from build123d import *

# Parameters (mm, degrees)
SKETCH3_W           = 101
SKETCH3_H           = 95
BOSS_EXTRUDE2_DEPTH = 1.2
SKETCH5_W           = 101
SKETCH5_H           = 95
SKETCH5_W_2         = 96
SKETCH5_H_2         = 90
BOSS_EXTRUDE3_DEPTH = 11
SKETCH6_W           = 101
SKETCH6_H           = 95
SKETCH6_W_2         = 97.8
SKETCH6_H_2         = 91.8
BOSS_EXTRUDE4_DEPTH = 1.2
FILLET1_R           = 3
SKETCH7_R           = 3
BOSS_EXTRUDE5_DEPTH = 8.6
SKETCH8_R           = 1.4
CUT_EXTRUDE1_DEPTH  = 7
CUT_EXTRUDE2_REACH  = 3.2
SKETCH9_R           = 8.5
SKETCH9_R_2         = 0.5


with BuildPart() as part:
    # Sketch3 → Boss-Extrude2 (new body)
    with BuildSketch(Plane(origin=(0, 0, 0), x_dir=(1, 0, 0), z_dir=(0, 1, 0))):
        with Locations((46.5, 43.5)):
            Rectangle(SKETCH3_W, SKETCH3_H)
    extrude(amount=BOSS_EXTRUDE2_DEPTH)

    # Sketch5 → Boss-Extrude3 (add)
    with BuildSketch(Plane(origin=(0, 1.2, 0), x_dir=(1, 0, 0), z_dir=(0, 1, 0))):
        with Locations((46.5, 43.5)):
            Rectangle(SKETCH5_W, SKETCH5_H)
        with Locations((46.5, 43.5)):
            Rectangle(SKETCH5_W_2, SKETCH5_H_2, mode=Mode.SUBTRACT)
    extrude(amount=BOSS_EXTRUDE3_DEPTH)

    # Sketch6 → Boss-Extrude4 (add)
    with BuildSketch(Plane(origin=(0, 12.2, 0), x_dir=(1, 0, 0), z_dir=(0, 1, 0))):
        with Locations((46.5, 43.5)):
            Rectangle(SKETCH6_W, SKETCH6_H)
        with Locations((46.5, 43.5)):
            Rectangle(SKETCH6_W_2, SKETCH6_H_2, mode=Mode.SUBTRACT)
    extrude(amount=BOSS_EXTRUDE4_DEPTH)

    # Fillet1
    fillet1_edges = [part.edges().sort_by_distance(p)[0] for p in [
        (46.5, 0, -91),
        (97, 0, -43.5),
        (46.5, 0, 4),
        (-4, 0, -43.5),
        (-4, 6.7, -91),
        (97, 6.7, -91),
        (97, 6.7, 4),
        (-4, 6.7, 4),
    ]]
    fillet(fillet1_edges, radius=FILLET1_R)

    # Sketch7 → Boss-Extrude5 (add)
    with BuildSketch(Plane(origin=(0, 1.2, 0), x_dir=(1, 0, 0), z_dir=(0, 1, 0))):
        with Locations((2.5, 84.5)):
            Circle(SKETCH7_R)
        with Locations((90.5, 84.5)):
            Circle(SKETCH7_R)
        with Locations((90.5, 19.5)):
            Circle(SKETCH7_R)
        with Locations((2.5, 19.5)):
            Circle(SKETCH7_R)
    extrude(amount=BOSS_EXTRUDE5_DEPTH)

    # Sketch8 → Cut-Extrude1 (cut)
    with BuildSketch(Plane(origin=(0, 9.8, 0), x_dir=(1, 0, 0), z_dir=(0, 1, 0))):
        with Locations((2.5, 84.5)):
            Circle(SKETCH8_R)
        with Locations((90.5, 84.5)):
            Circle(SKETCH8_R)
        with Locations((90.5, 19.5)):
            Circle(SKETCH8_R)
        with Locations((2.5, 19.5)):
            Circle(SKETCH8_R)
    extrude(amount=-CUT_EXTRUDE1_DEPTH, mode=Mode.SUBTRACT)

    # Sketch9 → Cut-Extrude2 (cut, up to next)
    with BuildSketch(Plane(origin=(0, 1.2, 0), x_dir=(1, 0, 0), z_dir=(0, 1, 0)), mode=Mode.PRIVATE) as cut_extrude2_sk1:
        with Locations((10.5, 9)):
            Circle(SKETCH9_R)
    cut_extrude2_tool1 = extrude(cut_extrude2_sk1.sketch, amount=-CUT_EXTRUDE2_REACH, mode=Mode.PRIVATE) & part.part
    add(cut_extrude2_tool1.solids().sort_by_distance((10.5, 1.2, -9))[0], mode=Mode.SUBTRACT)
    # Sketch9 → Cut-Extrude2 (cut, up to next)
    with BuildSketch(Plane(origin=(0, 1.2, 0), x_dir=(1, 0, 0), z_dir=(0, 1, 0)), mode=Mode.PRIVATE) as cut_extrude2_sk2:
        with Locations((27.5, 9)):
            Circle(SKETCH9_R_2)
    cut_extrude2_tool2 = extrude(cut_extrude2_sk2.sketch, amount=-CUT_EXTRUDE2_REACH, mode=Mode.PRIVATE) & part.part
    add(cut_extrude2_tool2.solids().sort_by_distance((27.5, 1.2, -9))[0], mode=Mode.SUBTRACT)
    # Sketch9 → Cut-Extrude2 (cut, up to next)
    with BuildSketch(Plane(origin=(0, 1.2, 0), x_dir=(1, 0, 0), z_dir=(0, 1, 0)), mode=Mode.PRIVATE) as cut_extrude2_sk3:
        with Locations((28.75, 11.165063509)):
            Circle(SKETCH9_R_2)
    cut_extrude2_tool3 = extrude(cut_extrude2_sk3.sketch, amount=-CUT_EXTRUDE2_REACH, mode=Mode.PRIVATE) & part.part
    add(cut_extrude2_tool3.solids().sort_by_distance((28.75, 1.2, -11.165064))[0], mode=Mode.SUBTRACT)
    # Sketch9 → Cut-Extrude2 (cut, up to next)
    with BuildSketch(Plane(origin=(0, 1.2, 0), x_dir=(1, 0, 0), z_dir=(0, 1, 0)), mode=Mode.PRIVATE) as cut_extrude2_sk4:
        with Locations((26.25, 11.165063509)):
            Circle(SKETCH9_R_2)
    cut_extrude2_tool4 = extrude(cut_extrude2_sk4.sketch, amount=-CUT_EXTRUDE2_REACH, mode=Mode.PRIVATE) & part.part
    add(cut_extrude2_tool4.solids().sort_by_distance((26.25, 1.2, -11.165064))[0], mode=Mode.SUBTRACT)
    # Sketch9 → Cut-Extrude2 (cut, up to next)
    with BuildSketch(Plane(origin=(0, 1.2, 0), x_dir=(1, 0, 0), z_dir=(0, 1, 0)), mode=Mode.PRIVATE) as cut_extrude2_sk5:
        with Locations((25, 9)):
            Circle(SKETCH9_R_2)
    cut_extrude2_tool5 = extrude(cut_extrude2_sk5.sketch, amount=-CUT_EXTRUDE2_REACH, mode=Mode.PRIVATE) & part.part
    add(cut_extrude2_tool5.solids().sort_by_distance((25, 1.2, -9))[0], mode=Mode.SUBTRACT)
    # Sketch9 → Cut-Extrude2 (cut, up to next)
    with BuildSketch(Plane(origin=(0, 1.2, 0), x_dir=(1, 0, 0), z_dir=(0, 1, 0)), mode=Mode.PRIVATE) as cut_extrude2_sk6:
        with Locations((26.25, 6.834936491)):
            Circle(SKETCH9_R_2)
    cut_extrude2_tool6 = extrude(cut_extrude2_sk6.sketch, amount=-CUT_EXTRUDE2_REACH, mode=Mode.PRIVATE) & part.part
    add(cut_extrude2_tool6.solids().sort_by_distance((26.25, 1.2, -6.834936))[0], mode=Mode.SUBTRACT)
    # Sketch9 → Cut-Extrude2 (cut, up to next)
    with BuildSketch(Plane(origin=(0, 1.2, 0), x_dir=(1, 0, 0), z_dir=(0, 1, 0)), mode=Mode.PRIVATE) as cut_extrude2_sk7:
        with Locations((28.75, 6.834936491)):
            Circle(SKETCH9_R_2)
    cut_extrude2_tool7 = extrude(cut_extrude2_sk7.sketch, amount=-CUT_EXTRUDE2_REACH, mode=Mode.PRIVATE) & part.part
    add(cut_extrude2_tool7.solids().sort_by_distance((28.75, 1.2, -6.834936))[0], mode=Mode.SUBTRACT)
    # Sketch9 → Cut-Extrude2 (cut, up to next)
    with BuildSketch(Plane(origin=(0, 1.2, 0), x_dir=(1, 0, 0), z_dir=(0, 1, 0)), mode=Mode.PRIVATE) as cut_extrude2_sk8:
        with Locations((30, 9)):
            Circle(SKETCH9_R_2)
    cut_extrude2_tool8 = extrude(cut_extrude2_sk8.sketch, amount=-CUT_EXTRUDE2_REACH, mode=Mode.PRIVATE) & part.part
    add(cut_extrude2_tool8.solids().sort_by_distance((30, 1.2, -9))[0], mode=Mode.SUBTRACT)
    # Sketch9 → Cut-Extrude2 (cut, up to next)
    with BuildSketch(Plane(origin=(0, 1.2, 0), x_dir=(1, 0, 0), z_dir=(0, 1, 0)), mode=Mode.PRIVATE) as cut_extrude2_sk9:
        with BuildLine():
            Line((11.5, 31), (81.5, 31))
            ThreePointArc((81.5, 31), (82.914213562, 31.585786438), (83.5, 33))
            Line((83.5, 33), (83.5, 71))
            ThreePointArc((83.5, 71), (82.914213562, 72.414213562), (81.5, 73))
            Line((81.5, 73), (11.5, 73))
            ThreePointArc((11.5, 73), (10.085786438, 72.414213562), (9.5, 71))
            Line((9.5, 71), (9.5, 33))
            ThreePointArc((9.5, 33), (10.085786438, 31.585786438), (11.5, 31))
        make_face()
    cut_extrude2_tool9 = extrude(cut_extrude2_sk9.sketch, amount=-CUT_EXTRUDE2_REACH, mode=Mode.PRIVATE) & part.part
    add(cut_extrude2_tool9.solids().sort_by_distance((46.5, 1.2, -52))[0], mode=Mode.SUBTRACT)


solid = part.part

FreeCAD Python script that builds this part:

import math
import FreeCAD as App
import Part
import Sketcher

V = App.Vector
Q = App.Units.Quantity


def edges_at(feature, points):
    """Names of the edges that pass closest to the given points."""
    edges = feature.Shape.Edges
    near = lambda p: min(range(len(edges)), key=lambda i: edges[i].distToShape(Part.Vertex(*p))[0])
    return sorted({f"Edge{near(p) + 1}" for p in points})


def add_polygon(sketch, points):
    """Adds a closed chain of lines whose ends are joined by coincident constraints."""
    first, n = sketch.GeometryCount, len(points)
    for a, b in zip(points, points[1:] + points[:1]):
        sketch.addGeometry(Part.LineSegment(App.Vector(*a, 0), App.Vector(*b, 0)), False)
    for i in range(n):
        sketch.addConstraint(Sketcher.Constraint("Coincident", first + i, 2, first + (i + 1) % n, 1))

doc = App.newDocument("Part")
params = doc.addObject("Spreadsheet::Sheet", "Params")
for row, (alias, value) in enumerate([
    ("sketch1_width", "101 mm"),
    ("sketch1_height", "95 mm"),
    ("pad1_length", "1.2 mm"),
    ("sketch2_width", "101 mm"),
    ("sketch2_width2", "96 mm"),
    ("sketch2_height", "95 mm"),
    ("sketch2_height2", "90 mm"),
    ("pad2_length", "11 mm"),
    ("sketch3_width", "101 mm"),
    ("sketch3_height", "95 mm"),
    ("sketch3_width2", "97.8 mm"),
    ("sketch3_height2", "91.8 mm"),
    ("pad3_length", "1.2 mm"),
    ("fillet_radius", "3 mm"),
    ("sketch4_diameter", "6 mm"),
    ("pad4_length", "8.6 mm"),
    ("sketch5_diameter", "2.8 mm"),
    ("pocket1_length", "7 mm"),
    ("sketch6_diameter", "17 mm"),
    ("sketch7_diameter", "1 mm"),
    ("sketch8_diameter", "1 mm"),
    ("sketch9_diameter", "1 mm"),
    ("sketch10_diameter", "1 mm"),
    ("sketch11_diameter", "1 mm"),
    ("sketch12_diameter", "1 mm"),
    ("sketch13_diameter", "1 mm"),
    ("sketch14_radius", "2 mm"),
    ("sketch14_width", "70 mm"),
    ("sketch14_height", "38 mm"),
], start=1):
    params.set(f"A{row}", alias)
    params.set(f"B{row}", "=" + value)
    params.setAlias(f"B{row}", alias)

body = doc.addObject("PartDesign::Body", "Body")

sketch1 = body.newObject("Sketcher::SketchObject", "Sketch")
sketch1.AttachmentSupport = (doc.getObject("XZ_Plane"), [""])
sketch1.MapMode = "FlatFace"
add_polygon(sketch1, [(-4, -91), (-4, 4), (97, 4), (97, -91)])
sketch1.addConstraint([
    Sketcher.Constraint("Vertical", 0),
    Sketcher.Constraint("Horizontal", 1),
    Sketcher.Constraint("Vertical", 2),
    Sketcher.Constraint("Horizontal", 3),
    Sketcher.Constraint("DistanceX", 1, 1, 1, 2, Q("101 mm")),
    Sketcher.Constraint("DistanceY", 0, 1, 0, 2, Q("95 mm")),
    Sketcher.Constraint("DistanceX", 0, 2, -1, 1, Q("4 mm")),
    Sketcher.Constraint("DistanceY", -1, 1, 0, 2, Q("4 mm")),
])
sketch1.setExpression("Constraints[8]", "Params.sketch1_width")
sketch1.setExpression("Constraints[9]", "Params.sketch1_height")
pad1 = body.newObject("PartDesign::Pad", "Pad")
pad1.Profile = sketch1
pad1.setExpression("Length", "Params.pad1_length")
pad1.Reversed = True

sketch2 = body.newObject("Sketcher::SketchObject", "Sketch001")
sketch2.AttachmentSupport = (doc.getObject("XZ_Plane"), [""])
sketch2.MapMode = "FlatFace"
sketch2.AttachmentOffset = App.Placement(V(0, 0, -1.2), App.Rotation())
add_polygon(sketch2, [(-4, -91), (-4, 4), (97, 4), (97, -91)])
add_polygon(sketch2, [(94.5, 1.5), (-1.5, 1.5), (-1.5, -88.5), (94.5, -88.5)])
sketch2.addConstraint([
    Sketcher.Constraint("Vertical", 0),
    Sketcher.Constraint("Horizontal", 1),
    Sketcher.Constraint("Vertical", 2),
    Sketcher.Constraint("Horizontal", 3),
    Sketcher.Constraint("Horizontal", 4),
    Sketcher.Constraint("Vertical", 5),
    Sketcher.Constraint("Horizontal", 6),
    Sketcher.Constraint("Vertical", 7),
    Sketcher.Constraint("DistanceX", 1, 1, 1, 2, Q("101 mm")),
    Sketcher.Constraint("DistanceX", 4, 2, 4, 1, Q("96 mm")),
    Sketcher.Constraint("DistanceY", 0, 1, 0, 2, Q("95 mm")),
    Sketcher.Constraint("DistanceY", 5, 2, 5, 1, Q("90 mm")),
    Sketcher.Constraint("DistanceX", 0, 2, -1, 1, Q("4 mm")),
    Sketcher.Constraint("DistanceY", -1, 1, 0, 2, Q("4 mm")),
    Sketcher.Constraint("DistanceX", 4, 2, -1, 1, Q("1.5 mm")),
    Sketcher.Constraint("DistanceY", -1, 1, 4, 2, Q("1.5 mm")),
])
sketch2.setExpression("Constraints[16]", "Params.sketch2_width")
sketch2.setExpression("Constraints[17]", "Params.sketch2_width2")
sketch2.setExpression("Constraints[18]", "Params.sketch2_height")
sketch2.setExpression("Constraints[19]", "Params.sketch2_height2")
pad2 = body.newObject("PartDesign::Pad", "Pad001")
pad2.Profile = sketch2
pad2.setExpression("Length", "Params.pad2_length")
pad2.Reversed = True

sketch3 = body.newObject("Sketcher::SketchObject", "Sketch002")
sketch3.AttachmentSupport = (doc.getObject("XZ_Plane"), [""])
sketch3.MapMode = "FlatFace"
sketch3.AttachmentOffset = App.Placement(V(0, 0, -12.2), App.Rotation())
add_polygon(sketch3, [(-4, -91), (-4, 4), (97, 4), (97, -91)])
add_polygon(sketch3, [(95.4, 2.4), (-2.4, 2.4), (-2.4, -89.4), (95.4, -89.4)])
sketch3.addConstraint([
    Sketcher.Constraint("Vertical", 0),
    Sketcher.Constraint("Horizontal", 1),
    Sketcher.Constraint("Vertical", 2),
    Sketcher.Constraint("Horizontal", 3),
    Sketcher.Constraint("Horizontal", 4),
    Sketcher.Constraint("Vertical", 5),
    Sketcher.Constraint("Horizontal", 6),
    Sketcher.Constraint("Vertical", 7),
    Sketcher.Constraint("DistanceX", 1, 1, 1, 2, Q("101 mm")),
    Sketcher.Constraint("DistanceY", 0, 1, 0, 2, Q("95 mm")),
    Sketcher.Constraint("DistanceX", 4, 2, 4, 1, Q("97.8 mm")),
    Sketcher.Constraint("DistanceY", 5, 2, 5, 1, Q("91.8 mm")),
    Sketcher.Constraint("DistanceX", 0, 2, -1, 1, Q("4 mm")),
    Sketcher.Constraint("DistanceY", -1, 1, 0, 2, Q("4 mm")),
    Sketcher.Constraint("DistanceX", 4, 2, -1, 1, Q("2.4 mm")),
    Sketcher.Constraint("DistanceY", -1, 1, 4, 2, Q("2.4 mm")),
])
sketch3.setExpression("Constraints[16]", "Params.sketch3_width")
sketch3.setExpression("Constraints[17]", "Params.sketch3_height")
sketch3.setExpression("Constraints[18]", "Params.sketch3_width2")
sketch3.setExpression("Constraints[19]", "Params.sketch3_height2")
pad3 = body.newObject("PartDesign::Pad", "Pad002")
pad3.Profile = sketch3
pad3.setExpression("Length", "Params.pad3_length")
pad3.Reversed = True
doc.recompute()

fillet = body.newObject("PartDesign::Fillet", "Fillet")
fillet.Base = (pad3, edges_at(pad3, [
    (46.5, 0, -91),
    (97, 0, -43.5),
    (46.5, 0, 4),
    (-4, 0, -43.5),
    (-4, 6.7, -91),
    (97, 6.7, -91),
    (97, 6.7, 4),
    (-4, 6.7, 4),
]))
fillet.setExpression("Radius", "Params.fillet_radius")

sketch4 = body.newObject("Sketcher::SketchObject", "Sketch003")
sketch4.AttachmentSupport = (doc.getObject("XZ_Plane"), [""])
sketch4.MapMode = "FlatFace"
sketch4.AttachmentOffset = App.Placement(V(0, 0, -1.2), App.Rotation())
sketch4.addGeometry([
    Part.Circle(V(2.5, -84.5, 0), V(0, 0, 1), 3),
    Part.Circle(V(90.5, -84.5, 0), V(0, 0, 1), 3),
    Part.Circle(V(90.5, -19.5, 0), V(0, 0, 1), 3),
    Part.Circle(V(2.5, -19.5, 0), V(0, 0, 1), 3),
], False)
sketch4.addConstraint([
    Sketcher.Constraint("Equal", 0, 1),
    Sketcher.Constraint("Equal", 1, 2),
    Sketcher.Constraint("Equal", 2, 3),
    Sketcher.Constraint("Horizontal", 0, 3, 1, 3),
    Sketcher.Constraint("Horizontal", 2, 3, 3, 3),
    Sketcher.Constraint("Vertical", 1, 3, 2, 3),
    Sketcher.Constraint("Vertical", 0, 3, 3, 3),
    Sketcher.Constraint("Diameter", 0, Q("6 mm")),
    Sketcher.Constraint("DistanceX", 0, 3, 1, 3, Q("88 mm")),
    Sketcher.Constraint("DistanceY", 1, 3, 2, 3, Q("65 mm")),
    Sketcher.Constraint("DistanceX", -1, 1, 0, 3, Q("2.5 mm")),
    Sketcher.Constraint("DistanceY", 0, 3, -1, 1, Q("84.5 mm")),
])
sketch4.setExpression("Constraints[7]", "Params.sketch4_diameter")
pad4 = body.newObject("PartDesign::Pad", "Pad003")
pad4.Profile = sketch4
pad4.setExpression("Length", "Params.pad4_length")
pad4.Reversed = True

sketch5 = body.newObject("Sketcher::SketchObject", "Sketch004")
sketch5.AttachmentSupport = (doc.getObject("XZ_Plane"), [""])
sketch5.MapMode = "FlatFace"
sketch5.AttachmentOffset = App.Placement(V(0, 0, -9.8), App.Rotation())
sketch5.addGeometry([
    Part.Circle(V(2.5, -84.5, 0), V(0, 0, 1), 1.4),
    Part.Circle(V(90.5, -84.5, 0), V(0, 0, 1), 1.4),
    Part.Circle(V(90.5, -19.5, 0), V(0, 0, 1), 1.4),
    Part.Circle(V(2.5, -19.5, 0), V(0, 0, 1), 1.4),
], False)
sketch5.addConstraint([
    Sketcher.Constraint("Equal", 0, 1),
    Sketcher.Constraint("Equal", 1, 2),
    Sketcher.Constraint("Equal", 2, 3),
    Sketcher.Constraint("Horizontal", 0, 3, 1, 3),
    Sketcher.Constraint("Horizontal", 2, 3, 3, 3),
    Sketcher.Constraint("Vertical", 1, 3, 2, 3),
    Sketcher.Constraint("Vertical", 0, 3, 3, 3),
    Sketcher.Constraint("Diameter", 0, Q("2.8 mm")),
    Sketcher.Constraint("DistanceX", 0, 3, 1, 3, Q("88 mm")),
    Sketcher.Constraint("DistanceY", 1, 3, 2, 3, Q("65 mm")),
    Sketcher.Constraint("DistanceX", -1, 1, 0, 3, Q("2.5 mm")),
    Sketcher.Constraint("DistanceY", 0, 3, -1, 1, Q("84.5 mm")),
])
sketch5.setExpression("Constraints[7]", "Params.sketch5_diameter")
pocket1 = body.newObject("PartDesign::Pocket", "Pocket")
pocket1.Profile = sketch5
pocket1.setExpression("Length", "Params.pocket1_length")
pocket1.Reversed = True

sketch6 = body.newObject("Sketcher::SketchObject", "Sketch005")
sketch6.AttachmentSupport = (doc.getObject("XZ_Plane"), [""])
sketch6.MapMode = "FlatFace"
sketch6.AttachmentOffset = App.Placement(V(0, 0, -1.2), App.Rotation())
sketch6.addGeometry(Part.Circle(V(10.5, -9, 0), V(0, 0, 1), 8.5), False)
sketch6.addConstraint([
    Sketcher.Constraint("Diameter", 0, Q("17 mm")),
    Sketcher.Constraint("DistanceY", 0, 3, -1, 1, Q("9 mm")),
    Sketcher.Constraint("DistanceX", -1, 1, 0, 3, Q("10.5 mm")),
])
sketch6.setExpression("Constraints[0]", "Params.sketch6_diameter")
pocket2 = body.newObject("PartDesign::Pocket", "Pocket001")
pocket2.Profile = sketch6
pocket2.Type = "UpToFirst"
pocket2.Reversed = True

sketch7 = body.newObject("Sketcher::SketchObject", "Sketch006")
sketch7.AttachmentSupport = (doc.getObject("XZ_Plane"), [""])
sketch7.MapMode = "FlatFace"
sketch7.AttachmentOffset = App.Placement(V(0, 0, -1.2), App.Rotation())
sketch7.addGeometry(Part.Circle(V(27.5, -9, 0), V(0, 0, 1), 0.5), False)
sketch7.addConstraint([
    Sketcher.Constraint("Diameter", 0, Q("1 mm")),
    Sketcher.Constraint("DistanceY", 0, 3, -1, 1, Q("9 mm")),
    Sketcher.Constraint("DistanceX", -1, 1, 0, 3, Q("27.5 mm")),
])
sketch7.setExpression("Constraints[0]", "Params.sketch7_diameter")
pocket3 = body.newObject("PartDesign::Pocket", "Pocket002")
pocket3.Profile = sketch7
pocket3.Type = "UpToFirst"
pocket3.Reversed = True

sketch8 = body.newObject("Sketcher::SketchObject", "Sketch007")
sketch8.AttachmentSupport = (doc.getObject("XZ_Plane"), [""])
sketch8.MapMode = "FlatFace"
sketch8.AttachmentOffset = App.Placement(V(0, 0, -1.2), App.Rotation())
sketch8.addGeometry(Part.Circle(V(28.75, -11.165064, 0), V(0, 0, 1), 0.5), False)
sketch8.addConstraint([
    Sketcher.Constraint("Diameter", 0, Q("1 mm")),
    Sketcher.Constraint("DistanceX", -1, 1, 0, 3, Q("28.75 mm")),
    Sketcher.Constraint("DistanceY", 0, 3, -1, 1, Q("11.165064 mm")),
])
sketch8.setExpression("Constraints[0]", "Params.sketch8_diameter")
pocket4 = body.newObject("PartDesign::Pocket", "Pocket003")
pocket4.Profile = sketch8
pocket4.Type = "UpToFirst"
pocket4.Reversed = True

sketch9 = body.newObject("Sketcher::SketchObject", "Sketch008")
sketch9.AttachmentSupport = (doc.getObject("XZ_Plane"), [""])
sketch9.MapMode = "FlatFace"
sketch9.AttachmentOffset = App.Placement(V(0, 0, -1.2), App.Rotation())
sketch9.addGeometry(Part.Circle(V(26.25, -11.165064, 0), V(0, 0, 1), 0.5), False)
sketch9.addConstraint([
    Sketcher.Constraint("Diameter", 0, Q("1 mm")),
    Sketcher.Constraint("DistanceX", -1, 1, 0, 3, Q("26.25 mm")),
    Sketcher.Constraint("DistanceY", 0, 3, -1, 1, Q("11.165064 mm")),
])
sketch9.setExpression("Constraints[0]", "Params.sketch9_diameter")
pocket5 = body.newObject("PartDesign::Pocket", "Pocket004")
pocket5.Profile = sketch9
pocket5.Type = "UpToFirst"
pocket5.Reversed = True

sketch10 = body.newObject("Sketcher::SketchObject", "Sketch009")
sketch10.AttachmentSupport = (doc.getObject("XZ_Plane"), [""])
sketch10.MapMode = "FlatFace"
sketch10.AttachmentOffset = App.Placement(V(0, 0, -1.2), App.Rotation())
sketch10.addGeometry(Part.Circle(V(25, -9, 0), V(0, 0, 1), 0.5), False)
sketch10.addConstraint([
    Sketcher.Constraint("Diameter", 0, Q("1 mm")),
    Sketcher.Constraint("DistanceX", -1, 1, 0, 3, Q("25 mm")),
    Sketcher.Constraint("DistanceY", 0, 3, -1, 1, Q("9 mm")),
])
sketch10.setExpression("Constraints[0]", "Params.sketch10_diameter")
pocket6 = body.newObject("PartDesign::Pocket", "Pocket005")
pocket6.Profile = sketch10
pocket6.Type = "UpToFirst"
pocket6.Reversed = True

sketch11 = body.newObject("Sketcher::SketchObject", "Sketch010")
sketch11.AttachmentSupport = (doc.getObject("XZ_Plane"), [""])
sketch11.MapMode = "FlatFace"
sketch11.AttachmentOffset = App.Placement(V(0, 0, -1.2), App.Rotation())
sketch11.addGeometry(Part.Circle(V(26.25, -6.834936, 0), V(0, 0, 1), 0.5), False)
sketch11.addConstraint([
    Sketcher.Constraint("Diameter", 0, Q("1 mm")),
    Sketcher.Constraint("DistanceX", -1, 1, 0, 3, Q("26.25 mm")),
    Sketcher.Constraint("DistanceY", 0, 3, -1, 1, Q("6.834936 mm")),
])
sketch11.setExpression("Constraints[0]", "Params.sketch11_diameter")
pocket7 = body.newObject("PartDesign::Pocket", "Pocket006")
pocket7.Profile = sketch11
pocket7.Type = "UpToFirst"
pocket7.Reversed = True

sketch12 = body.newObject("Sketcher::SketchObject", "Sketch011")
sketch12.AttachmentSupport = (doc.getObject("XZ_Plane"), [""])
sketch12.MapMode = "FlatFace"
sketch12.AttachmentOffset = App.Placement(V(0, 0, -1.2), App.Rotation())
sketch12.addGeometry(Part.Circle(V(28.75, -6.834936, 0), V(0, 0, 1), 0.5), False)
sketch12.addConstraint([
    Sketcher.Constraint("Diameter", 0, Q("1 mm")),
    Sketcher.Constraint("DistanceX", -1, 1, 0, 3, Q("28.75 mm")),
    Sketcher.Constraint("DistanceY", 0, 3, -1, 1, Q("6.834936 mm")),
])
sketch12.setExpression("Constraints[0]", "Params.sketch12_diameter")
pocket8 = body.newObject("PartDesign::Pocket", "Pocket007")
pocket8.Profile = sketch12
pocket8.Type = "UpToFirst"
pocket8.Reversed = True

sketch13 = body.newObject("Sketcher::SketchObject", "Sketch012")
sketch13.AttachmentSupport = (doc.getObject("XZ_Plane"), [""])
sketch13.MapMode = "FlatFace"
sketch13.AttachmentOffset = App.Placement(V(0, 0, -1.2), App.Rotation())
sketch13.addGeometry(Part.Circle(V(30, -9, 0), V(0, 0, 1), 0.5), False)
sketch13.addConstraint([
    Sketcher.Constraint("Diameter", 0, Q("1 mm")),
    Sketcher.Constraint("DistanceX", -1, 1, 0, 3, Q("30 mm")),
    Sketcher.Constraint("DistanceY", 0, 3, -1, 1, Q("9 mm")),
])
sketch13.setExpression("Constraints[0]", "Params.sketch13_diameter")
pocket9 = body.newObject("PartDesign::Pocket", "Pocket008")
pocket9.Profile = sketch13
pocket9.Type = "UpToFirst"
pocket9.Reversed = True

sketch14 = body.newObject("Sketcher::SketchObject", "Sketch013")
sketch14.AttachmentSupport = (doc.getObject("XZ_Plane"), [""])
sketch14.MapMode = "FlatFace"
sketch14.AttachmentOffset = App.Placement(V(0, 0, -1.2), App.Rotation())
sketch14.addGeometry([
    Part.LineSegment(V(11.5, -31, 0), V(81.5, -31, 0)),
    Part.ArcOfCircle(Part.Circle(V(81.5, -33, 0), V(0, 0, 1), 2), math.radians(0), math.radians(90)),
    Part.LineSegment(V(83.5, -33, 0), V(83.5, -71, 0)),
    Part.ArcOfCircle(Part.Circle(V(81.5, -71, 0), V(0, 0, 1), 2), math.radians(-90), math.radians(0)),
    Part.LineSegment(V(81.5, -73, 0), V(11.5, -73, 0)),
    Part.ArcOfCircle(Part.Circle(V(11.5, -71, 0), V(0, 0, 1), 2), math.radians(-180), math.radians(-90)),
    Part.LineSegment(V(9.5, -71, 0), V(9.5, -33, 0)),
    Part.ArcOfCircle(Part.Circle(V(11.5, -33, 0), V(0, 0, 1), 2), math.radians(90), math.radians(180)),
], False)
sketch14.addConstraint([
    Sketcher.Constraint("Tangent", 0, 2, 1, 2),
    Sketcher.Constraint("Tangent", 1, 1, 2, 1),
    Sketcher.Constraint("Tangent", 2, 2, 3, 2),
    Sketcher.Constraint("Tangent", 3, 1, 4, 1),
    Sketcher.Constraint("Tangent", 4, 2, 5, 2),
    Sketcher.Constraint("Tangent", 5, 1, 6, 1),
    Sketcher.Constraint("Tangent", 6, 2, 7, 2),
    Sketcher.Constraint("Tangent", 7, 1, 0, 1),
    Sketcher.Constraint("Horizontal", 0),
    Sketcher.Constraint("Vertical", 2),
    Sketcher.Constraint("Horizontal", 4),
    Sketcher.Constraint("Vertical", 6),
    Sketcher.Constraint("Equal", 1, 3),
    Sketcher.Constraint("Equal", 3, 5),
    Sketcher.Constraint("Equal", 5, 7),
    Sketcher.Constraint("Radius", 1, Q("2 mm")),
    Sketcher.Constraint("DistanceX", 0, 1, 0, 2, Q("70 mm")),
    Sketcher.Constraint("DistanceY", 2, 2, 2, 1, Q("38 mm")),
    Sketcher.Constraint("DistanceY", 1, 3, -1, 1, Q("33 mm")),
    Sketcher.Constraint("DistanceX", -1, 1, 1, 3, Q("81.5 mm")),
])
sketch14.setExpression("Constraints[15]", "Params.sketch14_radius")
sketch14.setExpression("Constraints[16]", "Params.sketch14_width")
sketch14.setExpression("Constraints[17]", "Params.sketch14_height")
pocket10 = body.newObject("PartDesign::Pocket", "Pocket009")
pocket10.Profile = sketch14
pocket10.Type = "UpToFirst"
pocket10.Reversed = True

doc.recompute()
